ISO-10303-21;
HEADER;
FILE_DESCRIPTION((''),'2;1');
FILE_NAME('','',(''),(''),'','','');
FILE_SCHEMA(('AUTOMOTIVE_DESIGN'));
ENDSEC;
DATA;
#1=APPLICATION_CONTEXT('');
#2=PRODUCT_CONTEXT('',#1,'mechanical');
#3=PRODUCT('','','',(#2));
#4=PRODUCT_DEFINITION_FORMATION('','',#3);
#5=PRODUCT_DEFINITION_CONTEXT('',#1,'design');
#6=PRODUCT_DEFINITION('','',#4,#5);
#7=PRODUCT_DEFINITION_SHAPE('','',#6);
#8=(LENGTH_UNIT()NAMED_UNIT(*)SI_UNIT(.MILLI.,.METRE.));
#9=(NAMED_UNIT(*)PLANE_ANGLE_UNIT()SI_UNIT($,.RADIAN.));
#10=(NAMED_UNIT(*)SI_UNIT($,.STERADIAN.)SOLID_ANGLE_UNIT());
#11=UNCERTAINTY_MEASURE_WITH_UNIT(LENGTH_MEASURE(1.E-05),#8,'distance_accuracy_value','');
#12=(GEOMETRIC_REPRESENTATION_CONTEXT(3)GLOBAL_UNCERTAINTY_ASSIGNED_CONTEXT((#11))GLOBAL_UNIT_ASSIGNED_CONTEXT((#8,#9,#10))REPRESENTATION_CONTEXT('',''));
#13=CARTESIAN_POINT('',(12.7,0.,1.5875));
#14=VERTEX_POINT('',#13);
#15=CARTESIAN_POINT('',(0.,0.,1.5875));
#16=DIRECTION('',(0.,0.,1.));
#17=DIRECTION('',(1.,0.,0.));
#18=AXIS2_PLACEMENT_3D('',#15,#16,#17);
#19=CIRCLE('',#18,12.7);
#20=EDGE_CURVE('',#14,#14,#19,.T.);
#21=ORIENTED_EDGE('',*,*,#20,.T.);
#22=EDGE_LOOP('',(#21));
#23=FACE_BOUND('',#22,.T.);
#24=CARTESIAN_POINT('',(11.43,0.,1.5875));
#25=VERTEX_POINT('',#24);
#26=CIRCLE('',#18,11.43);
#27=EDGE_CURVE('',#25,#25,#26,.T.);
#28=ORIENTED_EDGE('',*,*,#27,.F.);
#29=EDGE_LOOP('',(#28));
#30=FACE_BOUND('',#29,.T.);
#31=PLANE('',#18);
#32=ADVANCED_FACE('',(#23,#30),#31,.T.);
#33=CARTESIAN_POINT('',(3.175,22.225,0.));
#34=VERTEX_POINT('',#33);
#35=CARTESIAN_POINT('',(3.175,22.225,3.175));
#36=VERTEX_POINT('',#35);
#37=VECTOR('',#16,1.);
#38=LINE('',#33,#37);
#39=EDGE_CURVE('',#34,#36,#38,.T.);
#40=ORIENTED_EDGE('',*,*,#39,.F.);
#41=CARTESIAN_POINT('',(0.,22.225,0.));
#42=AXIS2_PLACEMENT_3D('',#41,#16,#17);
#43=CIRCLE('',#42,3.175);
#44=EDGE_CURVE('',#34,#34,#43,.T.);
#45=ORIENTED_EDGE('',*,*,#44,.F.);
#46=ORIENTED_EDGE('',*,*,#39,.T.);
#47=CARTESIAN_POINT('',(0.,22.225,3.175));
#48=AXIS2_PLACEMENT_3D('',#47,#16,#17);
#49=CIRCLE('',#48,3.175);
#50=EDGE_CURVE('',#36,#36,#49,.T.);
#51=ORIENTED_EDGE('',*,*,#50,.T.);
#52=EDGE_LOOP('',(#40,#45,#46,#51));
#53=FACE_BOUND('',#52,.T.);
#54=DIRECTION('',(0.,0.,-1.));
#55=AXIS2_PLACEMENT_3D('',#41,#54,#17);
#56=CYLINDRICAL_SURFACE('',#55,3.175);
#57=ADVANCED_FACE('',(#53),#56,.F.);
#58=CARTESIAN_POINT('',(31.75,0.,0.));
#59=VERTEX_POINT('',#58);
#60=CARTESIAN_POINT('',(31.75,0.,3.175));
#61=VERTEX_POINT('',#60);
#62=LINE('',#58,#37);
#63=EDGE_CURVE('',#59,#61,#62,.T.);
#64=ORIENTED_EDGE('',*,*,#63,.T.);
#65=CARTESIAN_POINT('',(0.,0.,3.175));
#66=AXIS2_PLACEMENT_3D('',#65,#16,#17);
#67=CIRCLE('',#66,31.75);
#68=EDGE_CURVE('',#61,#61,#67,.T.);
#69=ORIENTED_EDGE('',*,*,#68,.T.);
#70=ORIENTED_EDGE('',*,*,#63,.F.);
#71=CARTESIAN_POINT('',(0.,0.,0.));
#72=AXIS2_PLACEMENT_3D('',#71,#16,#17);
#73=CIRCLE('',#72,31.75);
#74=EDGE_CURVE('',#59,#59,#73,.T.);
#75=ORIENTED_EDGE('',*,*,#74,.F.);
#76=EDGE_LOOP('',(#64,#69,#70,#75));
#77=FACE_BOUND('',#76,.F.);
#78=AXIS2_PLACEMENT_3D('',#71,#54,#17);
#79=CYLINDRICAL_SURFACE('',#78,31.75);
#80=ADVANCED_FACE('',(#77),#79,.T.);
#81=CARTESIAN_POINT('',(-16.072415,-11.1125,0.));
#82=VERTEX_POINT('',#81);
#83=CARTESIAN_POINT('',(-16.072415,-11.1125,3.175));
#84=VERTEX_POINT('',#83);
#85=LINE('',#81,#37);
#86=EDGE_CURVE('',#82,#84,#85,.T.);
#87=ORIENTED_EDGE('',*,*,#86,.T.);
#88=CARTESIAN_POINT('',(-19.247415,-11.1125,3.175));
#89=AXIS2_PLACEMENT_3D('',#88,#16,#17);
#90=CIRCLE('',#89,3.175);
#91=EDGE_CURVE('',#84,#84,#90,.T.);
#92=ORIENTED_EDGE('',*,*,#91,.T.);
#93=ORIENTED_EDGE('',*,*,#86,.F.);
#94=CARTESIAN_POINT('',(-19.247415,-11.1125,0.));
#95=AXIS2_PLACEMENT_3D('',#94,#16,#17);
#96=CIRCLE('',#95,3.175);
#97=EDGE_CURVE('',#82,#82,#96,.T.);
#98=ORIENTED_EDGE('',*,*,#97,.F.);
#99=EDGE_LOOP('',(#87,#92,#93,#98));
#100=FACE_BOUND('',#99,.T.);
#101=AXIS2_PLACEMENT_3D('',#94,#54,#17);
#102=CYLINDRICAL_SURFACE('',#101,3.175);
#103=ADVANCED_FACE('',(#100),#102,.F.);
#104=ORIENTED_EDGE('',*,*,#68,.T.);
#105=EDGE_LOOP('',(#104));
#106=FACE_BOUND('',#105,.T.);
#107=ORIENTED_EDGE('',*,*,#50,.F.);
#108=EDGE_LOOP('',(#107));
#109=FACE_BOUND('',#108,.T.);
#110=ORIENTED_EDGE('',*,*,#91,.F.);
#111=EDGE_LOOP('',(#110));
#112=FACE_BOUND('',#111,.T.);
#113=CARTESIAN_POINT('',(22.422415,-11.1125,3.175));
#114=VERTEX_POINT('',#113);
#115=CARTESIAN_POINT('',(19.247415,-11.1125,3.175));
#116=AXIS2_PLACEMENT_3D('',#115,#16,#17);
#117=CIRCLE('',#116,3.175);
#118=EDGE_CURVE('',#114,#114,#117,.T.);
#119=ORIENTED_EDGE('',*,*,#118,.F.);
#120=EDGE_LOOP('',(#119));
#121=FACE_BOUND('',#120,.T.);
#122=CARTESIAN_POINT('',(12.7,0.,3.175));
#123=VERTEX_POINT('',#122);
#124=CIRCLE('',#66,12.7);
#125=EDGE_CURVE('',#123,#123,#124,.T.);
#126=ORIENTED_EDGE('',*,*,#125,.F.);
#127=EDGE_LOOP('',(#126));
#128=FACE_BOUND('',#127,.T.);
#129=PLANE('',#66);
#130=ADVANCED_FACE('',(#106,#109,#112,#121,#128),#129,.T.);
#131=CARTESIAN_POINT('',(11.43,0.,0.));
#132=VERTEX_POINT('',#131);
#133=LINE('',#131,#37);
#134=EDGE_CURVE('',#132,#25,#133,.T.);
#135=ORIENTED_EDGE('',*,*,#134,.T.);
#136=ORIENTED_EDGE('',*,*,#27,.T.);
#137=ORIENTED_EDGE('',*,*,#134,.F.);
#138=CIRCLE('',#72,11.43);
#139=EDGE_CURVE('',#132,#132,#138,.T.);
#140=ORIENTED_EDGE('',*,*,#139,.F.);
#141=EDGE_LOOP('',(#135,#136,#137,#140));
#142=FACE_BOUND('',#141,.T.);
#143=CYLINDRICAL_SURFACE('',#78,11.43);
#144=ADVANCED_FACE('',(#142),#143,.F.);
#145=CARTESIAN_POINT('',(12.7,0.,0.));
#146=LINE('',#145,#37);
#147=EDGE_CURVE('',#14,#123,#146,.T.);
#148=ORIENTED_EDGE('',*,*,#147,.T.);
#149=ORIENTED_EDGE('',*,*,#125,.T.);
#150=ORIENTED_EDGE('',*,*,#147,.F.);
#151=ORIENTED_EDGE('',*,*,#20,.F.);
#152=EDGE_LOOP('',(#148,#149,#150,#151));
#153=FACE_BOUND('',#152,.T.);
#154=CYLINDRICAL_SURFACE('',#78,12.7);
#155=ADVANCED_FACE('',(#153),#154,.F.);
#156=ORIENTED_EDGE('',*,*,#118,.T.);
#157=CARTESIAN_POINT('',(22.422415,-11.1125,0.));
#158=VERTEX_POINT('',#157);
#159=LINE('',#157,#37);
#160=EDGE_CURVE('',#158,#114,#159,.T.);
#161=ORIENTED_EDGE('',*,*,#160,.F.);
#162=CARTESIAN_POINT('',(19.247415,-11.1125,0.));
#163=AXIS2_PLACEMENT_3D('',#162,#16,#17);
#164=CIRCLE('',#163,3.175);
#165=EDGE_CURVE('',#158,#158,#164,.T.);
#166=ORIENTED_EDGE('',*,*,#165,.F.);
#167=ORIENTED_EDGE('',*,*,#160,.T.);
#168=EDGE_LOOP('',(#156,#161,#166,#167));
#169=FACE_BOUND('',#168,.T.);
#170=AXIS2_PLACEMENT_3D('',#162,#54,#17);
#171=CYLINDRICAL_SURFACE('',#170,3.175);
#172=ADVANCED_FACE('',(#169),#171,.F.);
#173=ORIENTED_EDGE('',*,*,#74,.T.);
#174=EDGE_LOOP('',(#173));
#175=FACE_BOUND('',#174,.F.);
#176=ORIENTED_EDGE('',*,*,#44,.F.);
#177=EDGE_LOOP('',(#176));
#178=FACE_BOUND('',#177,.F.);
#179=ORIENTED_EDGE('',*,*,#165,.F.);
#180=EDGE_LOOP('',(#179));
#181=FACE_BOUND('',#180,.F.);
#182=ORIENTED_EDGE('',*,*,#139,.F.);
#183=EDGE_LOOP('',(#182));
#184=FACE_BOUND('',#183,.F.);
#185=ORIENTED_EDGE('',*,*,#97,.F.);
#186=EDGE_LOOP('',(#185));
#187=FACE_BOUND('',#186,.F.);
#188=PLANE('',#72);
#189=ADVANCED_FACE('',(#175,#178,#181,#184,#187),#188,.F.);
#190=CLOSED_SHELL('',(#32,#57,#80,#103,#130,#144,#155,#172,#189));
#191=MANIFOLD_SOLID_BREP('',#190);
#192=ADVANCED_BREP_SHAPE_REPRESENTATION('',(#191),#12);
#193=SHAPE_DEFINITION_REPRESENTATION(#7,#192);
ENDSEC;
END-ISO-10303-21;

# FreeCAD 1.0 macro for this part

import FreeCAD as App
import Part
import Sketcher
from FreeCAD import Vector
Q = App.Units.Quantity

doc = App.newDocument("Part")
params = doc.addObject("Spreadsheet::Sheet", "Params")
for row, (alias, value) in enumerate([
    ("sketch1_diameter", "1 in"),
    ("sketch1_diameter2", "0.9 in"),
    ("pad1_length", "0.0625 in"),
    ("sketch2_diameter", "1 in"),
    ("sketch2_diameter2", "2.5 in"),
    ("sketch2_diameter3", "0.25 in"),
    ("pad2_length", "0.125 in"),
], start=1):
    params.set(f"A{row}", alias)
    params.set(f"B{row}", "=" + value)
    params.setAlias(f"B{row}", alias)

body = doc.addObject("PartDesign::Body", "Body")

sketch1 = body.newObject("Sketcher::SketchObject", "Sketch")
sketch1.AttachmentSupport = (doc.getObject("XY_Plane"), [""])
sketch1.MapMode = "FlatFace"
sketch1.addGeometry([
    Part.Circle(Vector(0, 0, 0), Vector(0, 0, 1), 13),
    Part.Circle(Vector(0, 0, 0), Vector(0, 0, 1), 11),
], False)
sketch1.addConstraint([
    Sketcher.Constraint("Coincident", 0, 3, -1, 1),
    Sketcher.Constraint("Coincident", 1, 3, -1, 1),
    Sketcher.Constraint("Diameter", 0, Q("1 in")),
    Sketcher.Constraint("Diameter", 1, Q("0.9 in")),
])
sketch1.setExpression("Constraints[2]", "Params.sketch1_diameter")
sketch1.setExpression("Constraints[3]", "Params.sketch1_diameter2")
pad1 = body.newObject("PartDesign::Pad", "Pad")
pad1.Profile = sketch1
pad1.setExpression("Length", "Params.pad1_length")

sketch2 = body.newObject("Sketcher::SketchObject", "Sketch001")
sketch2.AttachmentSupport = (doc.getObject("XY_Plane"), [""])
sketch2.MapMode = "FlatFace"
sketch2.addGeometry([
    Part.Circle(Vector(0, 0, 0), Vector(0, 0, 1), 31.8),
    Part.Circle(Vector(-19.2, -11.1, 0), Vector(0, 0, 1), 3.2),
    Part.Circle(Vector(19.2, -11.1, 0), Vector(0, 0, 1), 3.2),
    Part.Circle(Vector(0, 0, 0), Vector(0, 0, 1), 12.7),
    Part.Circle(Vector(0, 22.2, 0), Vector(0, 0, 1), 3.2),
], False)
sketch2.addConstraint([
    Sketcher.Constraint("Coincident", 0, 3, -1, 1),
    Sketcher.Constraint("Coincident", 3, 3, -1, 1),
    Sketcher.Constraint("Equal", 1, 2),
    Sketcher.Constraint("Equal", 2, 4),
    Sketcher.Constraint("Symmetric", 1, 3, 2, 3, -2),
    Sketcher.Constraint("PointOnObject", 4, 3, -2),
    Sketcher.Constraint("Diameter", 3, Q("1 in")),
    Sketcher.Constraint("Diameter", 0, Q("2.5 in")),
    Sketcher.Constraint("Diameter", 1, Q("0.25 in")),
    Sketcher.Constraint("DistanceY", 1, 3, -1, 1, Q("0.4375 in")),
    Sketcher.Constraint("DistanceY", -1, 1, 4, 3, Q("0.875 in")),
    Sketcher.Constraint("DistanceX", 1, 3, 2, 3, Q("38.49483 mm")),
])
sketch2.setExpression("Constraints[6]", "Params.sketch2_diameter")
sketch2.setExpression("Constraints[7]", "Params.sketch2_diameter2")
sketch2.setExpression("Constraints[8]", "Params.sketch2_diameter3")
pad2 = body.newObject("PartDesign::Pad", "Pad001")
pad2.Profile = sketch2
pad2.setExpression("Length", "Params.pad2_length")

doc.recompute()
